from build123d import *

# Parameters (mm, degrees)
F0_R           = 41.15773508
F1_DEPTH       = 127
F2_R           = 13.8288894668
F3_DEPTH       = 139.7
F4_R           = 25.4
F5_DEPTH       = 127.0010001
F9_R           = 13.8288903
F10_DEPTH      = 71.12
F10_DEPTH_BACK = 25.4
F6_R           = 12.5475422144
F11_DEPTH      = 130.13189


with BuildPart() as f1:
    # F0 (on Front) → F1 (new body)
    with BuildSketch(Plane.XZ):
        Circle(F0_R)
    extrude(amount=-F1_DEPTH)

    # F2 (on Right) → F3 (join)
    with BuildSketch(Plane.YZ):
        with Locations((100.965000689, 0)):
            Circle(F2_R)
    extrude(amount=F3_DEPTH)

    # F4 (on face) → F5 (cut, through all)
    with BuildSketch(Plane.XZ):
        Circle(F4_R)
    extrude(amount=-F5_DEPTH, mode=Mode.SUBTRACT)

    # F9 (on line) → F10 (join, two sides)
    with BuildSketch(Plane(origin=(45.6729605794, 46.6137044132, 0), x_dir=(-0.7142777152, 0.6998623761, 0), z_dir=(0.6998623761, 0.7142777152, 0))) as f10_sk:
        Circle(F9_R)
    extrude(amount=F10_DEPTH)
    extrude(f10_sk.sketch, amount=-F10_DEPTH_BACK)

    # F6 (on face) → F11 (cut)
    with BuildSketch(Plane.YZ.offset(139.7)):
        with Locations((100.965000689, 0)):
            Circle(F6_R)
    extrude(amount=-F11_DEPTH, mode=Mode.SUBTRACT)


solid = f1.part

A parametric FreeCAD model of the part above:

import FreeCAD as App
import Part
import Sketcher

V = App.Vector
Q = App.Units.Quantity

doc = App.newDocument("Part")
body = doc.addObject("PartDesign::Body", "Body")

sketch1 = body.newObject("Sketcher::SketchObject", "Sketch")
sketch1.AttachmentSupport = (doc.getObject("XZ_Plane"), [""])
sketch1.MapMode = "FlatFace"
sketch1.addGeometry(Part.Circle(V(0, 0, 0), V(0, 0, 1), 41.157735), False)
sketch1.addConstraint([
    Sketcher.Constraint("Coincident", 0, 3, -1, 1),
    Sketcher.Constraint("Diameter", 0, Q("82.31547 mm")),
])
pad1 = body.newObject("PartDesign::Pad", "Pad")
pad1.Profile = sketch1
pad1.Length = Q("5 in")
pad1.Reversed = True

sketch2 = body.newObject("Sketcher::SketchObject", "Sketch001")
sketch2.AttachmentSupport = (doc.getObject("YZ_Plane"), [""])
sketch2.MapMode = "FlatFace"
sketch2.addGeometry(Part.Circle(V(100.965001, 0, 0), V(0, 0, 1), 13.828889), False)
sketch2.addConstraint([
    Sketcher.Constraint("PointOnObject", 0, 3, -1),
    Sketcher.Constraint("Diameter", 0, Q("27.657779 mm")),
    Sketcher.Constraint("DistanceX", -1, 1, 0, 3, Q("3.975 in")),
])
pad2 = body.newObject("PartDesign::Pad", "Pad001")
pad2.Profile = sketch2
pad2.Length = Q("5.5 in")

sketch3 = body.newObject("Sketcher::SketchObject", "Sketch002")
sketch3.AttachmentSupport = (doc.getObject("XZ_Plane"), [""])
sketch3.MapMode = "FlatFace"
sketch3.addGeometry(Part.Circle(V(0, 0, 0), V(0, 0, 1), 25.4), False)
sketch3.addConstraint([
    Sketcher.Constraint("Coincident", 0, 3, -1, 1),
    Sketcher.Constraint("Diameter", 0, Q("2 in")),
])
pocket1 = body.newObject("PartDesign::Pocket", "Pocket")
pocket1.Profile = sketch3
pocket1.Type = "ThroughAll"

sketch4 = body.newObject("Sketcher::SketchObject", "Sketch003")
sketch4.Placement = App.Placement(V(45.672961, 46.613704, 0), App.Rotation(V(-0.714277715, 0.699862376, 0), V(0, 0, 0.999999999), V(0.699862376, 0.714277715, 0), "ZXY"))
sketch4.addGeometry(Part.Circle(V(0, 0, 0), V(0, 0, 1), 13.82889), False)
sketch4.addConstraint([
    Sketcher.Constraint("Coincident", 0, 3, -1, 1),
    Sketcher.Constraint("Diameter", 0, Q("27.657781 mm")),
])
pad3 = body.newObject("PartDesign::Pad", "Pad002")
pad3.Profile = sketch4
pad3.Type = "TwoLengths"
pad3.Length = Q("2.8 in")
pad3.Length2 = Q("1 in")

sketch5 = body.newObject("Sketcher::SketchObject", "Sketch004")
sketch5.AttachmentSupport = (doc.getObject("YZ_Plane"), [""])
sketch5.MapMode = "FlatFace"
sketch5.AttachmentOffset = App.Placement(V(0, 0, 5.5 * 25.4), App.Rotation())
sketch5.addGeometry(Part.Circle(V(100.965001, 0, 0), V(0, 0, 1), 12.547542), False)
sketch5.addConstraint([
    Sketcher.Constraint("PointOnObject", 0, 3, -1),
    Sketcher.Constraint("DistanceX", -1, 1, 0, 3, Q("3.975 in")),
    Sketcher.Constraint("Diameter", 0, Q("25.095084 mm")),
])
pocket2 = body.newObject("PartDesign::Pocket", "Pocket001")
pocket2.Profile = sketch5
pocket2.Length = 130.13189

doc.recompute()
